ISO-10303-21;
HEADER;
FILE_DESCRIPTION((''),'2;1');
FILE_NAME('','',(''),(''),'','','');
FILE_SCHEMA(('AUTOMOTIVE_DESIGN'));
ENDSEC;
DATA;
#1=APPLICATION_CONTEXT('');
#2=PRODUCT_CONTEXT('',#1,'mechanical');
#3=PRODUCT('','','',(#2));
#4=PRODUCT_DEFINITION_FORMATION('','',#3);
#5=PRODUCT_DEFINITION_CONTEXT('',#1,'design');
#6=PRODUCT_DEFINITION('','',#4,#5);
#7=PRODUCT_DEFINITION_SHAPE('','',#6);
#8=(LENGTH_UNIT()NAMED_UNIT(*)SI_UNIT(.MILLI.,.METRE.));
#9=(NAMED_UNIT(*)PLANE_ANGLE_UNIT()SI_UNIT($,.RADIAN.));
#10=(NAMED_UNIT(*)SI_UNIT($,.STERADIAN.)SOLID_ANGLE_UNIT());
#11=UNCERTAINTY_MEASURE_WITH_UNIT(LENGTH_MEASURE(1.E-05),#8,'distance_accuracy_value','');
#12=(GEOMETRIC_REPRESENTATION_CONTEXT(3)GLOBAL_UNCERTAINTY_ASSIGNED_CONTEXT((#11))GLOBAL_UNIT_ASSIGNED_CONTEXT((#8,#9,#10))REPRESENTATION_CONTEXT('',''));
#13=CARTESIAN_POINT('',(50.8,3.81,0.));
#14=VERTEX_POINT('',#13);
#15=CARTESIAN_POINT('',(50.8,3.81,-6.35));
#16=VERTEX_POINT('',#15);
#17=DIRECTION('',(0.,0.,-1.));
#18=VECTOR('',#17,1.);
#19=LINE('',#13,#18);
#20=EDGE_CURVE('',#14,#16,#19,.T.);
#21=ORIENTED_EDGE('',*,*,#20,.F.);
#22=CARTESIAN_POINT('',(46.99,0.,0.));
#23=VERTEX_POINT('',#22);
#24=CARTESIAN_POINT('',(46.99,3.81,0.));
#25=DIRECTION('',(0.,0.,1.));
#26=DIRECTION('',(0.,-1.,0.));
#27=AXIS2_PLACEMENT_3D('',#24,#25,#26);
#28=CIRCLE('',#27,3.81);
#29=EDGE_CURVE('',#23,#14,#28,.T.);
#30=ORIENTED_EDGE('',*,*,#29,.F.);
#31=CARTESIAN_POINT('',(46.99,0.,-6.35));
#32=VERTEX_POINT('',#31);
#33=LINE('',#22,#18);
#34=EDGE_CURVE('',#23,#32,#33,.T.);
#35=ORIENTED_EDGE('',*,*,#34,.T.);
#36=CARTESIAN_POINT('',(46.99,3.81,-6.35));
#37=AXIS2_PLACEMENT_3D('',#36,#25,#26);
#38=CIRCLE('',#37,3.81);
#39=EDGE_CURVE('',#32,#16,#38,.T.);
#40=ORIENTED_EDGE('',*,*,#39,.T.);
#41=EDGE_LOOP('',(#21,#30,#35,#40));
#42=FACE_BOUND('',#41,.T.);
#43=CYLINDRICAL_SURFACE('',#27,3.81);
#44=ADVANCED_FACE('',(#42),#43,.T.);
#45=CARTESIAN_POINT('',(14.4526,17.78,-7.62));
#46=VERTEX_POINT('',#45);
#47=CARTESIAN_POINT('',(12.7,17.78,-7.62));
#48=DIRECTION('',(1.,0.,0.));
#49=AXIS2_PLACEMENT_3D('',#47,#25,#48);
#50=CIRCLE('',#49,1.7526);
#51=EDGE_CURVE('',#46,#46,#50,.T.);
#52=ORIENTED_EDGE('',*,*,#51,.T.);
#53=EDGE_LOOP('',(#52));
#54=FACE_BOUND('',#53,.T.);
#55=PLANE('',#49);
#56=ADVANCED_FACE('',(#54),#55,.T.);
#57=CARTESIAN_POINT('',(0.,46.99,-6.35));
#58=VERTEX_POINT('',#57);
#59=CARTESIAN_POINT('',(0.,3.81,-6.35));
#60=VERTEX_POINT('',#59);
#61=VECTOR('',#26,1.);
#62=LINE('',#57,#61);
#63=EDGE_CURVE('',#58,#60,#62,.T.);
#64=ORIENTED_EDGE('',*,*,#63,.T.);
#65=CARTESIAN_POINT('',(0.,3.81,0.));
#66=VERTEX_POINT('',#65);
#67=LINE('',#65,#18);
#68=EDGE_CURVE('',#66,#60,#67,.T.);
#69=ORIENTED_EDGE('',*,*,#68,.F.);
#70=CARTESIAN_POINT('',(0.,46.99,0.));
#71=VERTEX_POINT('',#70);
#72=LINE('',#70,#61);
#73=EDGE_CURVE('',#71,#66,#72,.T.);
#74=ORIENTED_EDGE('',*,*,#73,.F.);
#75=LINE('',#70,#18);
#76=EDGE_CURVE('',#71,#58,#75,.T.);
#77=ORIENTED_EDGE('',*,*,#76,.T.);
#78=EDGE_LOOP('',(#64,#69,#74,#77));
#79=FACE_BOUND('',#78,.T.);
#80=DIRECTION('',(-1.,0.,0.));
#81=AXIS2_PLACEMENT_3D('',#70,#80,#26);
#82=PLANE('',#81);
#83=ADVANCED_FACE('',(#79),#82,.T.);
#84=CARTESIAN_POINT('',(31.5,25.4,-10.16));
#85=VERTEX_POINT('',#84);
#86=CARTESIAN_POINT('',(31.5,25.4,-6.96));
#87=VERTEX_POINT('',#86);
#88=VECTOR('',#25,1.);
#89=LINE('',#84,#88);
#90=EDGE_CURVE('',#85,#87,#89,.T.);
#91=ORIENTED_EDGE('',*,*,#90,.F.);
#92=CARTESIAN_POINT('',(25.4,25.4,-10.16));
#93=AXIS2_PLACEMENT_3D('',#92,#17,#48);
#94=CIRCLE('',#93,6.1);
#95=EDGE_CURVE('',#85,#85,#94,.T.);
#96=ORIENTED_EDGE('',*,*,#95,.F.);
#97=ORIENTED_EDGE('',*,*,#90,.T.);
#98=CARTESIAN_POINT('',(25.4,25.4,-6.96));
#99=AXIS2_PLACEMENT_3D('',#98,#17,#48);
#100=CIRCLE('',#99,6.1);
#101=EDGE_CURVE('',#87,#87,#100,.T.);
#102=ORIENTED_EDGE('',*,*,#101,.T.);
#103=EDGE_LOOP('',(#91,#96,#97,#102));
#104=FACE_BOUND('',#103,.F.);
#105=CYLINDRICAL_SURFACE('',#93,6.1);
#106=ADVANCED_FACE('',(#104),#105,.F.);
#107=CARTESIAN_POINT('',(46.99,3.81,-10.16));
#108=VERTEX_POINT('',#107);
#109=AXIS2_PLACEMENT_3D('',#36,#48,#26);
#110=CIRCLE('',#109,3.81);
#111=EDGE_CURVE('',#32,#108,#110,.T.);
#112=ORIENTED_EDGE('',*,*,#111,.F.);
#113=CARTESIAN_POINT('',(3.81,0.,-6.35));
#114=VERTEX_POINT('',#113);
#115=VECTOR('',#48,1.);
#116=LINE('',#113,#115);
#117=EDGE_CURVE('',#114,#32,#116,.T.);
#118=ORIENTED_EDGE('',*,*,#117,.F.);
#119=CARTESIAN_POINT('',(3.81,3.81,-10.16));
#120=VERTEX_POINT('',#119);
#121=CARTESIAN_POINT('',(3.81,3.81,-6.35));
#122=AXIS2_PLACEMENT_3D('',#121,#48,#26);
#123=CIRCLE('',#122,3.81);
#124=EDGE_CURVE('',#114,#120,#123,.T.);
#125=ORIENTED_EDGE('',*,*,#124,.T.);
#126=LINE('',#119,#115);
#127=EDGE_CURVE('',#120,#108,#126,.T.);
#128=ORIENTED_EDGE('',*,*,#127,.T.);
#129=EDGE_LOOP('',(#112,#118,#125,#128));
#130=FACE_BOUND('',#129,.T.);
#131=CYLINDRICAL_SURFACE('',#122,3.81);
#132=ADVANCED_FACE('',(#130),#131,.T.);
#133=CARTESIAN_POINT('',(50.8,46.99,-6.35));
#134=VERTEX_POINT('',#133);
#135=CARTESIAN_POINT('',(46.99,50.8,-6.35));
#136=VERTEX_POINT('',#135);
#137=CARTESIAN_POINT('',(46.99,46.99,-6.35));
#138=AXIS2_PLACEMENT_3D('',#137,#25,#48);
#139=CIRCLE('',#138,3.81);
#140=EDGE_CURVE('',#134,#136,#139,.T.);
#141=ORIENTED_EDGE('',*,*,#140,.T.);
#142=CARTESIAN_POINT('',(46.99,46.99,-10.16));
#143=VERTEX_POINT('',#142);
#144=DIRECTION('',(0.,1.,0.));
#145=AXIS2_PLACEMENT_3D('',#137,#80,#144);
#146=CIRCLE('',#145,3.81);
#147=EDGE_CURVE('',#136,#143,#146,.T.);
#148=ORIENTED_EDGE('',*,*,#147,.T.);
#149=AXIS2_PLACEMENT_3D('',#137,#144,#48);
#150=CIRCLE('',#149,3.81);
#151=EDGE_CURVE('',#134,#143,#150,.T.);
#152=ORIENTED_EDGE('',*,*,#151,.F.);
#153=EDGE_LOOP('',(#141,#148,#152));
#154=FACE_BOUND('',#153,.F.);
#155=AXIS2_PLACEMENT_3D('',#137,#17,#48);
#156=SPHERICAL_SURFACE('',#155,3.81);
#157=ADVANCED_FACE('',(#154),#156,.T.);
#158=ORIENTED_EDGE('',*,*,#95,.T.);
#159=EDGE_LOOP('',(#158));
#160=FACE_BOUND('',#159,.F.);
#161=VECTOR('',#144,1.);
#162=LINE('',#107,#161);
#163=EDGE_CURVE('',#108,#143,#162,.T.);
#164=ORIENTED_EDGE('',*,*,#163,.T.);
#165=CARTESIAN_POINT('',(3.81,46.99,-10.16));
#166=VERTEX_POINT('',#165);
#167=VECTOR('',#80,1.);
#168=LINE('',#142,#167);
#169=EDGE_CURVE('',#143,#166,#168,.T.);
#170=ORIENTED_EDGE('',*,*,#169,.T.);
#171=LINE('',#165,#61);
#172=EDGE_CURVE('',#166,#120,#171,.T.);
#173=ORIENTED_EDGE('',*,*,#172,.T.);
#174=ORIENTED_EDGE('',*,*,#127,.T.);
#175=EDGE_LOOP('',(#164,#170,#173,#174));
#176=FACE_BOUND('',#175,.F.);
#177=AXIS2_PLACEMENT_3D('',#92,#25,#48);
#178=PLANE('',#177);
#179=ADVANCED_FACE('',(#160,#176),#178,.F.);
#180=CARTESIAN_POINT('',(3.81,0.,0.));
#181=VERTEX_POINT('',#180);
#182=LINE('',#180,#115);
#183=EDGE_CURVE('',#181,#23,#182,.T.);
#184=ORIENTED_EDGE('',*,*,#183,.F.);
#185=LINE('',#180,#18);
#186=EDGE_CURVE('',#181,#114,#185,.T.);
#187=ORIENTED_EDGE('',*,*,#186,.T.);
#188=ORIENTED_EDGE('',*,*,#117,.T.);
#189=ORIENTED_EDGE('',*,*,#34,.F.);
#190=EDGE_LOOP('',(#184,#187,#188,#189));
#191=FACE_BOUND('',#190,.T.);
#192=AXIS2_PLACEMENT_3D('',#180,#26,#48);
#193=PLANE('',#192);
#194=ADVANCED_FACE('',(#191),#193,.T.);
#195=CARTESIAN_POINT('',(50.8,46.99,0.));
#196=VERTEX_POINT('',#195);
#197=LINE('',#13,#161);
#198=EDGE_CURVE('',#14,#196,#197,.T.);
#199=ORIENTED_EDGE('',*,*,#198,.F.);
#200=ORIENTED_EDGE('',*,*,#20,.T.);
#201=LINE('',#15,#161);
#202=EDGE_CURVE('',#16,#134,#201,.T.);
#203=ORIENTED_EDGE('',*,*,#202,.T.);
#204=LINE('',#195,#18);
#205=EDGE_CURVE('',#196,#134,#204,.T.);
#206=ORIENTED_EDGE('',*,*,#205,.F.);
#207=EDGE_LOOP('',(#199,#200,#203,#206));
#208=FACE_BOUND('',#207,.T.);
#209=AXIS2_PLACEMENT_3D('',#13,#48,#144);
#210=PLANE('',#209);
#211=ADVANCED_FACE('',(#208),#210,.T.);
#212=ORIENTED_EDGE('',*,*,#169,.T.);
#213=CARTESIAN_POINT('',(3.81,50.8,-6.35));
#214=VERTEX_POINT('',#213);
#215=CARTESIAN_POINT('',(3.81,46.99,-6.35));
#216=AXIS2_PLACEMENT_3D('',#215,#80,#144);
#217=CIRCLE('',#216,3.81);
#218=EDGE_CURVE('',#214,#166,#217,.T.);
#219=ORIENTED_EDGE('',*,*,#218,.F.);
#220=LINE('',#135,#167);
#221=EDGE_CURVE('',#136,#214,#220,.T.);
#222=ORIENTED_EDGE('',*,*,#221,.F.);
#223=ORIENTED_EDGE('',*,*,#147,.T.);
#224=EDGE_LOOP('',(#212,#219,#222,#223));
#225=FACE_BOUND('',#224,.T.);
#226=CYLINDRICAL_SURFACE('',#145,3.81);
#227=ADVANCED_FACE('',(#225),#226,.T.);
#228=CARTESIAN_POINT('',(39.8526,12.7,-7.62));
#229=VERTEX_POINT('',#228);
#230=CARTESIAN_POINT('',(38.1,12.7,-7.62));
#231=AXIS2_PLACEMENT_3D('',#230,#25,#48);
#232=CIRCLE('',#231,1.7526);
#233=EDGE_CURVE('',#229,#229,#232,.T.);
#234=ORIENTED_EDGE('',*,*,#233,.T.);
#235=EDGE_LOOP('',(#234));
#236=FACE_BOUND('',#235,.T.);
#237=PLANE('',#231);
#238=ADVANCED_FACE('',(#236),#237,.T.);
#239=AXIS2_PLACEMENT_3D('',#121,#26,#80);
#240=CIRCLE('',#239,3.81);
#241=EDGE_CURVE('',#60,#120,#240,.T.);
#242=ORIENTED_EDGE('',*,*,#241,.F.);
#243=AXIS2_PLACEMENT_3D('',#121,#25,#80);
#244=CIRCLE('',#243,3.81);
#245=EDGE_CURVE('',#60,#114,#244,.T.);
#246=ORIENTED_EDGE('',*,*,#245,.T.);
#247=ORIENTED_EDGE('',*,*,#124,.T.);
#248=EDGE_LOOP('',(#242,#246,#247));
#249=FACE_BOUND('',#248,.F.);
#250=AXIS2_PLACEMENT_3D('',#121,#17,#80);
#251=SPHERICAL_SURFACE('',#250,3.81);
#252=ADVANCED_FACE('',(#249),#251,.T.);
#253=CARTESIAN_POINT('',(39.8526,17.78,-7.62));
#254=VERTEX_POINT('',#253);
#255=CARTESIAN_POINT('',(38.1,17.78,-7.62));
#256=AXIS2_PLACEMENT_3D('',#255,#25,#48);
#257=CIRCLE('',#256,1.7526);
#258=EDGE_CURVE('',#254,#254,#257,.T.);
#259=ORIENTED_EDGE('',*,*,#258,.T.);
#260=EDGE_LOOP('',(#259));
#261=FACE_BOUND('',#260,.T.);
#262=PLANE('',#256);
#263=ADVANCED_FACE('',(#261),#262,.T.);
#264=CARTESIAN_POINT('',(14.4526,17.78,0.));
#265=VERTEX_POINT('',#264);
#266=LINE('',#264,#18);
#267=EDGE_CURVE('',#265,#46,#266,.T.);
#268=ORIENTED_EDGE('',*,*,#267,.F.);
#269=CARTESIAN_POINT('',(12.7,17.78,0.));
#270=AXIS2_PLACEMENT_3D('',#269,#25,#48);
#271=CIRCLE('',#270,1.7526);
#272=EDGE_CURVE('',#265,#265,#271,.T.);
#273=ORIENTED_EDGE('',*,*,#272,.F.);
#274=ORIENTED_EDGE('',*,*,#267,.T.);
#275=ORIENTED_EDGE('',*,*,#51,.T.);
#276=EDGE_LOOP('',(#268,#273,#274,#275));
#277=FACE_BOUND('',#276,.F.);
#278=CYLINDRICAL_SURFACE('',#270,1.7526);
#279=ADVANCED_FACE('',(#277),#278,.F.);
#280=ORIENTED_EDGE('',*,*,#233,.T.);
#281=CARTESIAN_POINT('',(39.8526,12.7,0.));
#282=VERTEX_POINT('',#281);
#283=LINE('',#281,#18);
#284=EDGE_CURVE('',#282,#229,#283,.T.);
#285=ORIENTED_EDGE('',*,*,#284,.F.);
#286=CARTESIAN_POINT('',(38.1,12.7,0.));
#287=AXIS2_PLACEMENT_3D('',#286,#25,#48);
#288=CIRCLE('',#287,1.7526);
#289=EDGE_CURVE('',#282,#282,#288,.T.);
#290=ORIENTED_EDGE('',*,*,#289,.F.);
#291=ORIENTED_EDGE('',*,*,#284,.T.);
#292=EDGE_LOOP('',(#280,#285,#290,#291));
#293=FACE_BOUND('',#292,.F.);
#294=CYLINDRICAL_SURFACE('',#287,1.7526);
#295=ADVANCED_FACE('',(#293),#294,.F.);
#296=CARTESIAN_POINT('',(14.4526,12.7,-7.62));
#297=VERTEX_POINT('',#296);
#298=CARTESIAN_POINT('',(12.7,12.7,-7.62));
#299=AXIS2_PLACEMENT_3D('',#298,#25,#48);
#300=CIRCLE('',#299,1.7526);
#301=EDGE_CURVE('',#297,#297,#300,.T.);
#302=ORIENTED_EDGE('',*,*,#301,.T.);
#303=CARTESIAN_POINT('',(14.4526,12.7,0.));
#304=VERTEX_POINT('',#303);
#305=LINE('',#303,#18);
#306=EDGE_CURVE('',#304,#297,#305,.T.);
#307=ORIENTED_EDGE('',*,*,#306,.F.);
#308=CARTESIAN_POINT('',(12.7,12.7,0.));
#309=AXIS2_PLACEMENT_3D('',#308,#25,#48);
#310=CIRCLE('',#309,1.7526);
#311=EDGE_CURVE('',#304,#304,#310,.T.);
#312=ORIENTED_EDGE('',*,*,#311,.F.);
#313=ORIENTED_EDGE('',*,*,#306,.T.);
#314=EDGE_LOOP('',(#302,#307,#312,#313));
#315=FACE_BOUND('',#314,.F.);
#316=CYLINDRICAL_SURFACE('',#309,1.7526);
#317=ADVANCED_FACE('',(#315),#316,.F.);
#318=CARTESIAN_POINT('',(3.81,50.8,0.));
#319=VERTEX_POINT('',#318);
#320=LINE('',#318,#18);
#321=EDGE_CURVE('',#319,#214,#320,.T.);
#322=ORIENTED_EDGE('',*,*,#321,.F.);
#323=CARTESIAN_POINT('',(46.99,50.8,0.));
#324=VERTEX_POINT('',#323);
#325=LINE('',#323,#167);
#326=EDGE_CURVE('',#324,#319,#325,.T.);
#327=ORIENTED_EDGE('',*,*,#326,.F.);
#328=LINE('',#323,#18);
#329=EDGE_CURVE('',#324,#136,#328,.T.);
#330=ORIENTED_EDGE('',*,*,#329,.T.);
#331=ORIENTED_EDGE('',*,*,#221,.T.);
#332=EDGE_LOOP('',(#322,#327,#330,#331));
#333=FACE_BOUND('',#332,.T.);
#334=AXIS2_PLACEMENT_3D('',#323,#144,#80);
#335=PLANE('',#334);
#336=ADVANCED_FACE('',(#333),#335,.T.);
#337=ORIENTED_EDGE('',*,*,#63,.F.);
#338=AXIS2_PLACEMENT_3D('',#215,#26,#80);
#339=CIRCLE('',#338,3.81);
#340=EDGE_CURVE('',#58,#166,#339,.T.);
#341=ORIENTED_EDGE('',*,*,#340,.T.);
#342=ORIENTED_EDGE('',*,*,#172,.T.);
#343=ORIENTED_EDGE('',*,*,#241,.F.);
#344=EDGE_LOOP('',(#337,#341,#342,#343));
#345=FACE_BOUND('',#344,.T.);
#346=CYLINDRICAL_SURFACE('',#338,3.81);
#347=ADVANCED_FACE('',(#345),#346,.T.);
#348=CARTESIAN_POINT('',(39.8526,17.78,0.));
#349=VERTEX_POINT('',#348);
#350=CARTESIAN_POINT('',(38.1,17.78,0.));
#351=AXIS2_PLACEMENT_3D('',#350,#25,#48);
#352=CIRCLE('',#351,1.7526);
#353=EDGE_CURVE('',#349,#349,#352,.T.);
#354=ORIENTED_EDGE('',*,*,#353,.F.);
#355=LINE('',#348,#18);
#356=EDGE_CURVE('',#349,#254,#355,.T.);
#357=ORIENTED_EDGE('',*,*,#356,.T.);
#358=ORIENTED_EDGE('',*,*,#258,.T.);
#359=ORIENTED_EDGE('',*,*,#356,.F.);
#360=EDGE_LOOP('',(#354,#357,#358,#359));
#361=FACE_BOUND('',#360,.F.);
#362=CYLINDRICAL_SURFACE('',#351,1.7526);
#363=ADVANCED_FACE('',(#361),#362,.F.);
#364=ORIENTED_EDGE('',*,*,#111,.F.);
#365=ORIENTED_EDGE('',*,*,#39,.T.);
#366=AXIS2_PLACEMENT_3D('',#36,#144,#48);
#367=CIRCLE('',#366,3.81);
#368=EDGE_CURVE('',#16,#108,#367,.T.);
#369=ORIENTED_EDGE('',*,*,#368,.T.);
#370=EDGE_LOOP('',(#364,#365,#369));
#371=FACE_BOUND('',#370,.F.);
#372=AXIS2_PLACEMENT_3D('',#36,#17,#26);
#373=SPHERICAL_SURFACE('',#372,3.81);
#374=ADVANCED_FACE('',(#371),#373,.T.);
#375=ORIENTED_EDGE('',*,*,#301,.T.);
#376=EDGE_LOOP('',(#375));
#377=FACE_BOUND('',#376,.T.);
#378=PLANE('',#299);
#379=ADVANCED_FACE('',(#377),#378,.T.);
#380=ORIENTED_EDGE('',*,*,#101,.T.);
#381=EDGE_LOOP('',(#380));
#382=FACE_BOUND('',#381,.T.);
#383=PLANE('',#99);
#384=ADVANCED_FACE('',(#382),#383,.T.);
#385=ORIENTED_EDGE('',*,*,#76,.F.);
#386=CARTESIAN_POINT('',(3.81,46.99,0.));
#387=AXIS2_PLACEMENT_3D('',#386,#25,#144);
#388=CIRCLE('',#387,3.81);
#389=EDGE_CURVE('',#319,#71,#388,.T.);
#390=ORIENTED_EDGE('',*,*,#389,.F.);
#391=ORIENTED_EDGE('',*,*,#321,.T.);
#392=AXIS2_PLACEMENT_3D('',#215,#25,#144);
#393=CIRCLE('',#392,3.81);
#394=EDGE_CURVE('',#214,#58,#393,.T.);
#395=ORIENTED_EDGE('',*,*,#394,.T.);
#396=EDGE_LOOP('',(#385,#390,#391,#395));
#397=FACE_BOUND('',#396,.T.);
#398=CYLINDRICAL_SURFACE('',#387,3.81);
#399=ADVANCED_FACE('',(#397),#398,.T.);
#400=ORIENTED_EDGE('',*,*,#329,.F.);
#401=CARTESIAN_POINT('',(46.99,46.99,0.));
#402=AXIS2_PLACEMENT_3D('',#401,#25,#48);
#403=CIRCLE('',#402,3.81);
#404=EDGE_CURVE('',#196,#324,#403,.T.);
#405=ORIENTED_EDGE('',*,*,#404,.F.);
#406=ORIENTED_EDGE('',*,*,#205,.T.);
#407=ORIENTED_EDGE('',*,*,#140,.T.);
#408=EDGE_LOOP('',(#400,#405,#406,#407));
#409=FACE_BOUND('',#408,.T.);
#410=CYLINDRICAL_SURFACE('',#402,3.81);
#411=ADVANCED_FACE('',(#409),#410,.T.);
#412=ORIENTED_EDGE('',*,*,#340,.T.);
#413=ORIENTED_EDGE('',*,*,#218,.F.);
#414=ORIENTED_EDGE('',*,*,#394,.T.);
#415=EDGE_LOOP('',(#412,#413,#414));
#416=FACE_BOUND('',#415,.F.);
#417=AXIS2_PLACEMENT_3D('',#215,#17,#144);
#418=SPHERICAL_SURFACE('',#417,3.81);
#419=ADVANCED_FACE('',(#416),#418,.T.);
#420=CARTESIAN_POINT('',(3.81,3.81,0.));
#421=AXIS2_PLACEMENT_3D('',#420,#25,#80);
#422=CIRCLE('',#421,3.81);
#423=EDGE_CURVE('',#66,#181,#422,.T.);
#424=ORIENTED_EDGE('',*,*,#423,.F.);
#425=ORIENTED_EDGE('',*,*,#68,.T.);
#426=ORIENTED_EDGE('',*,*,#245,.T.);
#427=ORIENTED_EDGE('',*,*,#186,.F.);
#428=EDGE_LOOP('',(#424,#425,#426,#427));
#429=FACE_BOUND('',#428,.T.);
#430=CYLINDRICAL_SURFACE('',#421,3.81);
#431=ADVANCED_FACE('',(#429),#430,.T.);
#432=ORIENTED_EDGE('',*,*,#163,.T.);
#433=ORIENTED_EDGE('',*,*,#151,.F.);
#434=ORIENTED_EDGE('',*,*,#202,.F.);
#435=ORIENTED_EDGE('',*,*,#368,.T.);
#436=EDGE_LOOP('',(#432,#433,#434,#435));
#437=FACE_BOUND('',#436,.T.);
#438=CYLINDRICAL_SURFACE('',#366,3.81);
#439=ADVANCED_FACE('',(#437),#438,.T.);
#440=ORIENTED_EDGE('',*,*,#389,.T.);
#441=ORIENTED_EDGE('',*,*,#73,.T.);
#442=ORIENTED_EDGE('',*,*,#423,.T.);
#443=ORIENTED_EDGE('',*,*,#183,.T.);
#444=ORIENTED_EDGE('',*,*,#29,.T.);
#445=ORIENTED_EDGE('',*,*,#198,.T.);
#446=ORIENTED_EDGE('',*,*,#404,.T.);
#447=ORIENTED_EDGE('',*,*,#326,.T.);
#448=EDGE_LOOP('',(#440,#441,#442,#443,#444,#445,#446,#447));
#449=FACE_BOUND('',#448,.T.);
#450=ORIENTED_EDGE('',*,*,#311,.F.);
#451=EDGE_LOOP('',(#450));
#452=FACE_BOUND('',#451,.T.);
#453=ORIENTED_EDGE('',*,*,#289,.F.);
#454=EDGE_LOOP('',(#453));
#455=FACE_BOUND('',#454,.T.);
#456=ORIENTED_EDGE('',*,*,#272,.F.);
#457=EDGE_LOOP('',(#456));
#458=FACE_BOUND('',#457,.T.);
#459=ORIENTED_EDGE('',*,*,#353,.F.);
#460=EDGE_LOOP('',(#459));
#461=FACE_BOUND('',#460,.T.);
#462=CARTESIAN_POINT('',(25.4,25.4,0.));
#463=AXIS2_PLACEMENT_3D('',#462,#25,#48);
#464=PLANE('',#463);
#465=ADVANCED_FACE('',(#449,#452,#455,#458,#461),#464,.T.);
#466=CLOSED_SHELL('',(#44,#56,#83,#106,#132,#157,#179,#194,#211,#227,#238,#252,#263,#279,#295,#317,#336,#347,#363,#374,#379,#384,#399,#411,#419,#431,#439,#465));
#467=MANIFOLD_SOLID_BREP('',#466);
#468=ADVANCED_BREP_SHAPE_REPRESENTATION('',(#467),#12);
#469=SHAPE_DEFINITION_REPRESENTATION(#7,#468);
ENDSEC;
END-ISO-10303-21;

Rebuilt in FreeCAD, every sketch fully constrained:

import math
import FreeCAD as App
import Part
import Sketcher
from FreeCAD import Vector
Q = App.Units.Quantity


def edges_at(feature, points):
    """Names of the edges that pass closest to the given points."""
    edges = feature.Shape.Edges
    near = lambda p: min(range(len(edges)), key=lambda i: edges[i].distToShape(Part.Vertex(*p))[0])
    return sorted({f"Edge{near(p) + 1}" for p in points})

doc = App.newDocument("Part")
body = doc.addObject("PartDesign::Body", "Body")

sketch1 = doc.addObject("Sketcher::SketchObject", "Sketch")
body.addObject(sketch1)
sketch1.AttachmentSupport = (doc.XY_Plane, [""])
sketch1.MapMode = "FlatFace"
sketch1.addGeometry([
    Part.ArcOfCircle(Part.Circle(Vector(3.8, 3.8, 0), Vector(0, 0, 1), 3.8), math.radians(180), math.radians(270)),
    Part.LineSegment(Vector(3.8, 0, 0), Vector(47, 0, 0)),
    Part.ArcOfCircle(Part.Circle(Vector(47, 3.8, 0), Vector(0, 0, 1), 3.8), math.radians(-90), math.radians(0)),
    Part.LineSegment(Vector(50.8, 3.8, 0), Vector(50.8, 47, 0)),
    Part.ArcOfCircle(Part.Circle(Vector(47, 47, 0), Vector(0, 0, 1), 3.8), math.radians(0), math.radians(90)),
    Part.LineSegment(Vector(47, 50.8, 0), Vector(3.8, 50.8, 0)),
    Part.ArcOfCircle(Part.Circle(Vector(3.8, 47, 0), Vector(0, 0, 1), 3.8), math.radians(90), math.radians(180)),
    Part.LineSegment(Vector(0, 47, 0), Vector(0, 3.8, 0)),
], False)
sketch1.addConstraint([
    Sketcher.Constraint("Tangent", 0, 2, 1, 1),
    Sketcher.Constraint("Tangent", 1, 2, 2, 1),
    Sketcher.Constraint("Tangent", 2, 2, 3, 1),
    Sketcher.Constraint("Tangent", 3, 2, 4, 1),
    Sketcher.Constraint("Tangent", 4, 2, 5, 1),
    Sketcher.Constraint("Tangent", 5, 2, 6, 1),
    Sketcher.Constraint("Tangent", 6, 2, 7, 1),
    Sketcher.Constraint("Tangent", 7, 2, 0, 1),
    Sketcher.Constraint("Horizontal", 1),
    Sketcher.Constraint("Vertical", 3),
    Sketcher.Constraint("Horizontal", 5),
    Sketcher.Constraint("Vertical", 7),
    Sketcher.Constraint("Equal", 0, 2),
    Sketcher.Constraint("Equal", 2, 4),
    Sketcher.Constraint("Equal", 4, 6),
    Sketcher.Constraint("PointOnObject", 0, 2, -1),
    Sketcher.Constraint("PointOnObject", 6, 2, -2),
    Sketcher.Constraint("Equal", 5, 3),
    Sketcher.Constraint("Radius", 0, Q("0.15 in")),
    Sketcher.Constraint("DistanceX", 1, 1, 1, 2, Q("1.7 in")),
])
pad1 = doc.addObject("PartDesign::Pad", "Pad")
body.addObject(pad1)
pad1.Profile = sketch1
pad1.Length = Q("0.4 in")
pad1.Reversed = True

sketch2 = doc.addObject("Sketcher::SketchObject", "Sketch001")
body.addObject(sketch2)
sketch2.AttachmentSupport = (doc.XY_Plane, [""])
sketch2.MapMode = "FlatFace"
sketch2.addGeometry([
    Part.Circle(Vector(12.7, 17.8, 0), Vector(0, 0, 1), 1.8),
    Part.Circle(Vector(38.1, 17.8, 0), Vector(0, 0, 1), 1.8),
    Part.Circle(Vector(38.1, 12.7, 0), Vector(0, 0, 1), 1.8),
    Part.Circle(Vector(12.7, 12.7, 0), Vector(0, 0, 1), 1.8),
], False)
sketch2.addConstraint([
    Sketcher.Constraint("Equal", 0, 1),
    Sketcher.Constraint("Equal", 1, 2),
    Sketcher.Constraint("Equal", 2, 3),
    Sketcher.Constraint("Horizontal", 0, 3, 1, 3),
    Sketcher.Constraint("Horizontal", 2, 3, 3, 3),
    Sketcher.Constraint("Vertical", 1, 3, 2, 3),
    Sketcher.Constraint("Vertical", 0, 3, 3, 3),
    Sketcher.Constraint("Diameter", 0, Q("0.138 in")),
    Sketcher.Constraint("DistanceX", 0, 3, 1, 3, Q("1 in")),
    Sketcher.Constraint("DistanceX", -1, 1, 0, 3, Q("0.5 in")),
    Sketcher.Constraint("DistanceY", -1, 1, 0, 3, Q("0.7 in")),
    Sketcher.Constraint("DistanceY", -1, 1, 2, 3, Q("0.5 in")),
])
pocket1 = doc.addObject("PartDesign::Pocket", "Pocket")
body.addObject(pocket1)
pocket1.Profile = sketch2
pocket1.Length = Q("0.3 in")

sketch3 = doc.addObject("Sketcher::SketchObject", "Sketch002")
body.addObject(sketch3)
sketch3.AttachmentSupport = (doc.XY_Plane, [""])
sketch3.MapMode = "FlatFace"
sketch3.AttachmentOffset = App.Placement(Vector(0, 0, -0.4 * 25.4), App.Rotation())
sketch3.addGeometry(Part.Circle(Vector(25, 25, 0), Vector(0, 0, 1), 6), False)
sketch3.addConstraint([
    Sketcher.Constraint("DistanceX", -1, 1, 0, 3, Q("1 in")),
    Sketcher.Constraint("DistanceY", -1, 1, 0, 3, Q("1 in")),
    Sketcher.Constraint("Diameter", 0, Q("12.2 mm")),
])
pocket2 = doc.addObject("PartDesign::Pocket", "Pocket001")
body.addObject(pocket2)
pocket2.Profile = sketch3
pocket2.Length = 3.2
pocket2.Reversed = True
doc.recompute()

fillet = doc.addObject("PartDesign::Fillet", "Fillet")
body.addObject(fillet)
fillet.Base = (pocket2, edges_at(pocket2, [(25.4, 0, -10.16)]))
fillet.Radius = Q("0.15 in")

doc.recompute()
